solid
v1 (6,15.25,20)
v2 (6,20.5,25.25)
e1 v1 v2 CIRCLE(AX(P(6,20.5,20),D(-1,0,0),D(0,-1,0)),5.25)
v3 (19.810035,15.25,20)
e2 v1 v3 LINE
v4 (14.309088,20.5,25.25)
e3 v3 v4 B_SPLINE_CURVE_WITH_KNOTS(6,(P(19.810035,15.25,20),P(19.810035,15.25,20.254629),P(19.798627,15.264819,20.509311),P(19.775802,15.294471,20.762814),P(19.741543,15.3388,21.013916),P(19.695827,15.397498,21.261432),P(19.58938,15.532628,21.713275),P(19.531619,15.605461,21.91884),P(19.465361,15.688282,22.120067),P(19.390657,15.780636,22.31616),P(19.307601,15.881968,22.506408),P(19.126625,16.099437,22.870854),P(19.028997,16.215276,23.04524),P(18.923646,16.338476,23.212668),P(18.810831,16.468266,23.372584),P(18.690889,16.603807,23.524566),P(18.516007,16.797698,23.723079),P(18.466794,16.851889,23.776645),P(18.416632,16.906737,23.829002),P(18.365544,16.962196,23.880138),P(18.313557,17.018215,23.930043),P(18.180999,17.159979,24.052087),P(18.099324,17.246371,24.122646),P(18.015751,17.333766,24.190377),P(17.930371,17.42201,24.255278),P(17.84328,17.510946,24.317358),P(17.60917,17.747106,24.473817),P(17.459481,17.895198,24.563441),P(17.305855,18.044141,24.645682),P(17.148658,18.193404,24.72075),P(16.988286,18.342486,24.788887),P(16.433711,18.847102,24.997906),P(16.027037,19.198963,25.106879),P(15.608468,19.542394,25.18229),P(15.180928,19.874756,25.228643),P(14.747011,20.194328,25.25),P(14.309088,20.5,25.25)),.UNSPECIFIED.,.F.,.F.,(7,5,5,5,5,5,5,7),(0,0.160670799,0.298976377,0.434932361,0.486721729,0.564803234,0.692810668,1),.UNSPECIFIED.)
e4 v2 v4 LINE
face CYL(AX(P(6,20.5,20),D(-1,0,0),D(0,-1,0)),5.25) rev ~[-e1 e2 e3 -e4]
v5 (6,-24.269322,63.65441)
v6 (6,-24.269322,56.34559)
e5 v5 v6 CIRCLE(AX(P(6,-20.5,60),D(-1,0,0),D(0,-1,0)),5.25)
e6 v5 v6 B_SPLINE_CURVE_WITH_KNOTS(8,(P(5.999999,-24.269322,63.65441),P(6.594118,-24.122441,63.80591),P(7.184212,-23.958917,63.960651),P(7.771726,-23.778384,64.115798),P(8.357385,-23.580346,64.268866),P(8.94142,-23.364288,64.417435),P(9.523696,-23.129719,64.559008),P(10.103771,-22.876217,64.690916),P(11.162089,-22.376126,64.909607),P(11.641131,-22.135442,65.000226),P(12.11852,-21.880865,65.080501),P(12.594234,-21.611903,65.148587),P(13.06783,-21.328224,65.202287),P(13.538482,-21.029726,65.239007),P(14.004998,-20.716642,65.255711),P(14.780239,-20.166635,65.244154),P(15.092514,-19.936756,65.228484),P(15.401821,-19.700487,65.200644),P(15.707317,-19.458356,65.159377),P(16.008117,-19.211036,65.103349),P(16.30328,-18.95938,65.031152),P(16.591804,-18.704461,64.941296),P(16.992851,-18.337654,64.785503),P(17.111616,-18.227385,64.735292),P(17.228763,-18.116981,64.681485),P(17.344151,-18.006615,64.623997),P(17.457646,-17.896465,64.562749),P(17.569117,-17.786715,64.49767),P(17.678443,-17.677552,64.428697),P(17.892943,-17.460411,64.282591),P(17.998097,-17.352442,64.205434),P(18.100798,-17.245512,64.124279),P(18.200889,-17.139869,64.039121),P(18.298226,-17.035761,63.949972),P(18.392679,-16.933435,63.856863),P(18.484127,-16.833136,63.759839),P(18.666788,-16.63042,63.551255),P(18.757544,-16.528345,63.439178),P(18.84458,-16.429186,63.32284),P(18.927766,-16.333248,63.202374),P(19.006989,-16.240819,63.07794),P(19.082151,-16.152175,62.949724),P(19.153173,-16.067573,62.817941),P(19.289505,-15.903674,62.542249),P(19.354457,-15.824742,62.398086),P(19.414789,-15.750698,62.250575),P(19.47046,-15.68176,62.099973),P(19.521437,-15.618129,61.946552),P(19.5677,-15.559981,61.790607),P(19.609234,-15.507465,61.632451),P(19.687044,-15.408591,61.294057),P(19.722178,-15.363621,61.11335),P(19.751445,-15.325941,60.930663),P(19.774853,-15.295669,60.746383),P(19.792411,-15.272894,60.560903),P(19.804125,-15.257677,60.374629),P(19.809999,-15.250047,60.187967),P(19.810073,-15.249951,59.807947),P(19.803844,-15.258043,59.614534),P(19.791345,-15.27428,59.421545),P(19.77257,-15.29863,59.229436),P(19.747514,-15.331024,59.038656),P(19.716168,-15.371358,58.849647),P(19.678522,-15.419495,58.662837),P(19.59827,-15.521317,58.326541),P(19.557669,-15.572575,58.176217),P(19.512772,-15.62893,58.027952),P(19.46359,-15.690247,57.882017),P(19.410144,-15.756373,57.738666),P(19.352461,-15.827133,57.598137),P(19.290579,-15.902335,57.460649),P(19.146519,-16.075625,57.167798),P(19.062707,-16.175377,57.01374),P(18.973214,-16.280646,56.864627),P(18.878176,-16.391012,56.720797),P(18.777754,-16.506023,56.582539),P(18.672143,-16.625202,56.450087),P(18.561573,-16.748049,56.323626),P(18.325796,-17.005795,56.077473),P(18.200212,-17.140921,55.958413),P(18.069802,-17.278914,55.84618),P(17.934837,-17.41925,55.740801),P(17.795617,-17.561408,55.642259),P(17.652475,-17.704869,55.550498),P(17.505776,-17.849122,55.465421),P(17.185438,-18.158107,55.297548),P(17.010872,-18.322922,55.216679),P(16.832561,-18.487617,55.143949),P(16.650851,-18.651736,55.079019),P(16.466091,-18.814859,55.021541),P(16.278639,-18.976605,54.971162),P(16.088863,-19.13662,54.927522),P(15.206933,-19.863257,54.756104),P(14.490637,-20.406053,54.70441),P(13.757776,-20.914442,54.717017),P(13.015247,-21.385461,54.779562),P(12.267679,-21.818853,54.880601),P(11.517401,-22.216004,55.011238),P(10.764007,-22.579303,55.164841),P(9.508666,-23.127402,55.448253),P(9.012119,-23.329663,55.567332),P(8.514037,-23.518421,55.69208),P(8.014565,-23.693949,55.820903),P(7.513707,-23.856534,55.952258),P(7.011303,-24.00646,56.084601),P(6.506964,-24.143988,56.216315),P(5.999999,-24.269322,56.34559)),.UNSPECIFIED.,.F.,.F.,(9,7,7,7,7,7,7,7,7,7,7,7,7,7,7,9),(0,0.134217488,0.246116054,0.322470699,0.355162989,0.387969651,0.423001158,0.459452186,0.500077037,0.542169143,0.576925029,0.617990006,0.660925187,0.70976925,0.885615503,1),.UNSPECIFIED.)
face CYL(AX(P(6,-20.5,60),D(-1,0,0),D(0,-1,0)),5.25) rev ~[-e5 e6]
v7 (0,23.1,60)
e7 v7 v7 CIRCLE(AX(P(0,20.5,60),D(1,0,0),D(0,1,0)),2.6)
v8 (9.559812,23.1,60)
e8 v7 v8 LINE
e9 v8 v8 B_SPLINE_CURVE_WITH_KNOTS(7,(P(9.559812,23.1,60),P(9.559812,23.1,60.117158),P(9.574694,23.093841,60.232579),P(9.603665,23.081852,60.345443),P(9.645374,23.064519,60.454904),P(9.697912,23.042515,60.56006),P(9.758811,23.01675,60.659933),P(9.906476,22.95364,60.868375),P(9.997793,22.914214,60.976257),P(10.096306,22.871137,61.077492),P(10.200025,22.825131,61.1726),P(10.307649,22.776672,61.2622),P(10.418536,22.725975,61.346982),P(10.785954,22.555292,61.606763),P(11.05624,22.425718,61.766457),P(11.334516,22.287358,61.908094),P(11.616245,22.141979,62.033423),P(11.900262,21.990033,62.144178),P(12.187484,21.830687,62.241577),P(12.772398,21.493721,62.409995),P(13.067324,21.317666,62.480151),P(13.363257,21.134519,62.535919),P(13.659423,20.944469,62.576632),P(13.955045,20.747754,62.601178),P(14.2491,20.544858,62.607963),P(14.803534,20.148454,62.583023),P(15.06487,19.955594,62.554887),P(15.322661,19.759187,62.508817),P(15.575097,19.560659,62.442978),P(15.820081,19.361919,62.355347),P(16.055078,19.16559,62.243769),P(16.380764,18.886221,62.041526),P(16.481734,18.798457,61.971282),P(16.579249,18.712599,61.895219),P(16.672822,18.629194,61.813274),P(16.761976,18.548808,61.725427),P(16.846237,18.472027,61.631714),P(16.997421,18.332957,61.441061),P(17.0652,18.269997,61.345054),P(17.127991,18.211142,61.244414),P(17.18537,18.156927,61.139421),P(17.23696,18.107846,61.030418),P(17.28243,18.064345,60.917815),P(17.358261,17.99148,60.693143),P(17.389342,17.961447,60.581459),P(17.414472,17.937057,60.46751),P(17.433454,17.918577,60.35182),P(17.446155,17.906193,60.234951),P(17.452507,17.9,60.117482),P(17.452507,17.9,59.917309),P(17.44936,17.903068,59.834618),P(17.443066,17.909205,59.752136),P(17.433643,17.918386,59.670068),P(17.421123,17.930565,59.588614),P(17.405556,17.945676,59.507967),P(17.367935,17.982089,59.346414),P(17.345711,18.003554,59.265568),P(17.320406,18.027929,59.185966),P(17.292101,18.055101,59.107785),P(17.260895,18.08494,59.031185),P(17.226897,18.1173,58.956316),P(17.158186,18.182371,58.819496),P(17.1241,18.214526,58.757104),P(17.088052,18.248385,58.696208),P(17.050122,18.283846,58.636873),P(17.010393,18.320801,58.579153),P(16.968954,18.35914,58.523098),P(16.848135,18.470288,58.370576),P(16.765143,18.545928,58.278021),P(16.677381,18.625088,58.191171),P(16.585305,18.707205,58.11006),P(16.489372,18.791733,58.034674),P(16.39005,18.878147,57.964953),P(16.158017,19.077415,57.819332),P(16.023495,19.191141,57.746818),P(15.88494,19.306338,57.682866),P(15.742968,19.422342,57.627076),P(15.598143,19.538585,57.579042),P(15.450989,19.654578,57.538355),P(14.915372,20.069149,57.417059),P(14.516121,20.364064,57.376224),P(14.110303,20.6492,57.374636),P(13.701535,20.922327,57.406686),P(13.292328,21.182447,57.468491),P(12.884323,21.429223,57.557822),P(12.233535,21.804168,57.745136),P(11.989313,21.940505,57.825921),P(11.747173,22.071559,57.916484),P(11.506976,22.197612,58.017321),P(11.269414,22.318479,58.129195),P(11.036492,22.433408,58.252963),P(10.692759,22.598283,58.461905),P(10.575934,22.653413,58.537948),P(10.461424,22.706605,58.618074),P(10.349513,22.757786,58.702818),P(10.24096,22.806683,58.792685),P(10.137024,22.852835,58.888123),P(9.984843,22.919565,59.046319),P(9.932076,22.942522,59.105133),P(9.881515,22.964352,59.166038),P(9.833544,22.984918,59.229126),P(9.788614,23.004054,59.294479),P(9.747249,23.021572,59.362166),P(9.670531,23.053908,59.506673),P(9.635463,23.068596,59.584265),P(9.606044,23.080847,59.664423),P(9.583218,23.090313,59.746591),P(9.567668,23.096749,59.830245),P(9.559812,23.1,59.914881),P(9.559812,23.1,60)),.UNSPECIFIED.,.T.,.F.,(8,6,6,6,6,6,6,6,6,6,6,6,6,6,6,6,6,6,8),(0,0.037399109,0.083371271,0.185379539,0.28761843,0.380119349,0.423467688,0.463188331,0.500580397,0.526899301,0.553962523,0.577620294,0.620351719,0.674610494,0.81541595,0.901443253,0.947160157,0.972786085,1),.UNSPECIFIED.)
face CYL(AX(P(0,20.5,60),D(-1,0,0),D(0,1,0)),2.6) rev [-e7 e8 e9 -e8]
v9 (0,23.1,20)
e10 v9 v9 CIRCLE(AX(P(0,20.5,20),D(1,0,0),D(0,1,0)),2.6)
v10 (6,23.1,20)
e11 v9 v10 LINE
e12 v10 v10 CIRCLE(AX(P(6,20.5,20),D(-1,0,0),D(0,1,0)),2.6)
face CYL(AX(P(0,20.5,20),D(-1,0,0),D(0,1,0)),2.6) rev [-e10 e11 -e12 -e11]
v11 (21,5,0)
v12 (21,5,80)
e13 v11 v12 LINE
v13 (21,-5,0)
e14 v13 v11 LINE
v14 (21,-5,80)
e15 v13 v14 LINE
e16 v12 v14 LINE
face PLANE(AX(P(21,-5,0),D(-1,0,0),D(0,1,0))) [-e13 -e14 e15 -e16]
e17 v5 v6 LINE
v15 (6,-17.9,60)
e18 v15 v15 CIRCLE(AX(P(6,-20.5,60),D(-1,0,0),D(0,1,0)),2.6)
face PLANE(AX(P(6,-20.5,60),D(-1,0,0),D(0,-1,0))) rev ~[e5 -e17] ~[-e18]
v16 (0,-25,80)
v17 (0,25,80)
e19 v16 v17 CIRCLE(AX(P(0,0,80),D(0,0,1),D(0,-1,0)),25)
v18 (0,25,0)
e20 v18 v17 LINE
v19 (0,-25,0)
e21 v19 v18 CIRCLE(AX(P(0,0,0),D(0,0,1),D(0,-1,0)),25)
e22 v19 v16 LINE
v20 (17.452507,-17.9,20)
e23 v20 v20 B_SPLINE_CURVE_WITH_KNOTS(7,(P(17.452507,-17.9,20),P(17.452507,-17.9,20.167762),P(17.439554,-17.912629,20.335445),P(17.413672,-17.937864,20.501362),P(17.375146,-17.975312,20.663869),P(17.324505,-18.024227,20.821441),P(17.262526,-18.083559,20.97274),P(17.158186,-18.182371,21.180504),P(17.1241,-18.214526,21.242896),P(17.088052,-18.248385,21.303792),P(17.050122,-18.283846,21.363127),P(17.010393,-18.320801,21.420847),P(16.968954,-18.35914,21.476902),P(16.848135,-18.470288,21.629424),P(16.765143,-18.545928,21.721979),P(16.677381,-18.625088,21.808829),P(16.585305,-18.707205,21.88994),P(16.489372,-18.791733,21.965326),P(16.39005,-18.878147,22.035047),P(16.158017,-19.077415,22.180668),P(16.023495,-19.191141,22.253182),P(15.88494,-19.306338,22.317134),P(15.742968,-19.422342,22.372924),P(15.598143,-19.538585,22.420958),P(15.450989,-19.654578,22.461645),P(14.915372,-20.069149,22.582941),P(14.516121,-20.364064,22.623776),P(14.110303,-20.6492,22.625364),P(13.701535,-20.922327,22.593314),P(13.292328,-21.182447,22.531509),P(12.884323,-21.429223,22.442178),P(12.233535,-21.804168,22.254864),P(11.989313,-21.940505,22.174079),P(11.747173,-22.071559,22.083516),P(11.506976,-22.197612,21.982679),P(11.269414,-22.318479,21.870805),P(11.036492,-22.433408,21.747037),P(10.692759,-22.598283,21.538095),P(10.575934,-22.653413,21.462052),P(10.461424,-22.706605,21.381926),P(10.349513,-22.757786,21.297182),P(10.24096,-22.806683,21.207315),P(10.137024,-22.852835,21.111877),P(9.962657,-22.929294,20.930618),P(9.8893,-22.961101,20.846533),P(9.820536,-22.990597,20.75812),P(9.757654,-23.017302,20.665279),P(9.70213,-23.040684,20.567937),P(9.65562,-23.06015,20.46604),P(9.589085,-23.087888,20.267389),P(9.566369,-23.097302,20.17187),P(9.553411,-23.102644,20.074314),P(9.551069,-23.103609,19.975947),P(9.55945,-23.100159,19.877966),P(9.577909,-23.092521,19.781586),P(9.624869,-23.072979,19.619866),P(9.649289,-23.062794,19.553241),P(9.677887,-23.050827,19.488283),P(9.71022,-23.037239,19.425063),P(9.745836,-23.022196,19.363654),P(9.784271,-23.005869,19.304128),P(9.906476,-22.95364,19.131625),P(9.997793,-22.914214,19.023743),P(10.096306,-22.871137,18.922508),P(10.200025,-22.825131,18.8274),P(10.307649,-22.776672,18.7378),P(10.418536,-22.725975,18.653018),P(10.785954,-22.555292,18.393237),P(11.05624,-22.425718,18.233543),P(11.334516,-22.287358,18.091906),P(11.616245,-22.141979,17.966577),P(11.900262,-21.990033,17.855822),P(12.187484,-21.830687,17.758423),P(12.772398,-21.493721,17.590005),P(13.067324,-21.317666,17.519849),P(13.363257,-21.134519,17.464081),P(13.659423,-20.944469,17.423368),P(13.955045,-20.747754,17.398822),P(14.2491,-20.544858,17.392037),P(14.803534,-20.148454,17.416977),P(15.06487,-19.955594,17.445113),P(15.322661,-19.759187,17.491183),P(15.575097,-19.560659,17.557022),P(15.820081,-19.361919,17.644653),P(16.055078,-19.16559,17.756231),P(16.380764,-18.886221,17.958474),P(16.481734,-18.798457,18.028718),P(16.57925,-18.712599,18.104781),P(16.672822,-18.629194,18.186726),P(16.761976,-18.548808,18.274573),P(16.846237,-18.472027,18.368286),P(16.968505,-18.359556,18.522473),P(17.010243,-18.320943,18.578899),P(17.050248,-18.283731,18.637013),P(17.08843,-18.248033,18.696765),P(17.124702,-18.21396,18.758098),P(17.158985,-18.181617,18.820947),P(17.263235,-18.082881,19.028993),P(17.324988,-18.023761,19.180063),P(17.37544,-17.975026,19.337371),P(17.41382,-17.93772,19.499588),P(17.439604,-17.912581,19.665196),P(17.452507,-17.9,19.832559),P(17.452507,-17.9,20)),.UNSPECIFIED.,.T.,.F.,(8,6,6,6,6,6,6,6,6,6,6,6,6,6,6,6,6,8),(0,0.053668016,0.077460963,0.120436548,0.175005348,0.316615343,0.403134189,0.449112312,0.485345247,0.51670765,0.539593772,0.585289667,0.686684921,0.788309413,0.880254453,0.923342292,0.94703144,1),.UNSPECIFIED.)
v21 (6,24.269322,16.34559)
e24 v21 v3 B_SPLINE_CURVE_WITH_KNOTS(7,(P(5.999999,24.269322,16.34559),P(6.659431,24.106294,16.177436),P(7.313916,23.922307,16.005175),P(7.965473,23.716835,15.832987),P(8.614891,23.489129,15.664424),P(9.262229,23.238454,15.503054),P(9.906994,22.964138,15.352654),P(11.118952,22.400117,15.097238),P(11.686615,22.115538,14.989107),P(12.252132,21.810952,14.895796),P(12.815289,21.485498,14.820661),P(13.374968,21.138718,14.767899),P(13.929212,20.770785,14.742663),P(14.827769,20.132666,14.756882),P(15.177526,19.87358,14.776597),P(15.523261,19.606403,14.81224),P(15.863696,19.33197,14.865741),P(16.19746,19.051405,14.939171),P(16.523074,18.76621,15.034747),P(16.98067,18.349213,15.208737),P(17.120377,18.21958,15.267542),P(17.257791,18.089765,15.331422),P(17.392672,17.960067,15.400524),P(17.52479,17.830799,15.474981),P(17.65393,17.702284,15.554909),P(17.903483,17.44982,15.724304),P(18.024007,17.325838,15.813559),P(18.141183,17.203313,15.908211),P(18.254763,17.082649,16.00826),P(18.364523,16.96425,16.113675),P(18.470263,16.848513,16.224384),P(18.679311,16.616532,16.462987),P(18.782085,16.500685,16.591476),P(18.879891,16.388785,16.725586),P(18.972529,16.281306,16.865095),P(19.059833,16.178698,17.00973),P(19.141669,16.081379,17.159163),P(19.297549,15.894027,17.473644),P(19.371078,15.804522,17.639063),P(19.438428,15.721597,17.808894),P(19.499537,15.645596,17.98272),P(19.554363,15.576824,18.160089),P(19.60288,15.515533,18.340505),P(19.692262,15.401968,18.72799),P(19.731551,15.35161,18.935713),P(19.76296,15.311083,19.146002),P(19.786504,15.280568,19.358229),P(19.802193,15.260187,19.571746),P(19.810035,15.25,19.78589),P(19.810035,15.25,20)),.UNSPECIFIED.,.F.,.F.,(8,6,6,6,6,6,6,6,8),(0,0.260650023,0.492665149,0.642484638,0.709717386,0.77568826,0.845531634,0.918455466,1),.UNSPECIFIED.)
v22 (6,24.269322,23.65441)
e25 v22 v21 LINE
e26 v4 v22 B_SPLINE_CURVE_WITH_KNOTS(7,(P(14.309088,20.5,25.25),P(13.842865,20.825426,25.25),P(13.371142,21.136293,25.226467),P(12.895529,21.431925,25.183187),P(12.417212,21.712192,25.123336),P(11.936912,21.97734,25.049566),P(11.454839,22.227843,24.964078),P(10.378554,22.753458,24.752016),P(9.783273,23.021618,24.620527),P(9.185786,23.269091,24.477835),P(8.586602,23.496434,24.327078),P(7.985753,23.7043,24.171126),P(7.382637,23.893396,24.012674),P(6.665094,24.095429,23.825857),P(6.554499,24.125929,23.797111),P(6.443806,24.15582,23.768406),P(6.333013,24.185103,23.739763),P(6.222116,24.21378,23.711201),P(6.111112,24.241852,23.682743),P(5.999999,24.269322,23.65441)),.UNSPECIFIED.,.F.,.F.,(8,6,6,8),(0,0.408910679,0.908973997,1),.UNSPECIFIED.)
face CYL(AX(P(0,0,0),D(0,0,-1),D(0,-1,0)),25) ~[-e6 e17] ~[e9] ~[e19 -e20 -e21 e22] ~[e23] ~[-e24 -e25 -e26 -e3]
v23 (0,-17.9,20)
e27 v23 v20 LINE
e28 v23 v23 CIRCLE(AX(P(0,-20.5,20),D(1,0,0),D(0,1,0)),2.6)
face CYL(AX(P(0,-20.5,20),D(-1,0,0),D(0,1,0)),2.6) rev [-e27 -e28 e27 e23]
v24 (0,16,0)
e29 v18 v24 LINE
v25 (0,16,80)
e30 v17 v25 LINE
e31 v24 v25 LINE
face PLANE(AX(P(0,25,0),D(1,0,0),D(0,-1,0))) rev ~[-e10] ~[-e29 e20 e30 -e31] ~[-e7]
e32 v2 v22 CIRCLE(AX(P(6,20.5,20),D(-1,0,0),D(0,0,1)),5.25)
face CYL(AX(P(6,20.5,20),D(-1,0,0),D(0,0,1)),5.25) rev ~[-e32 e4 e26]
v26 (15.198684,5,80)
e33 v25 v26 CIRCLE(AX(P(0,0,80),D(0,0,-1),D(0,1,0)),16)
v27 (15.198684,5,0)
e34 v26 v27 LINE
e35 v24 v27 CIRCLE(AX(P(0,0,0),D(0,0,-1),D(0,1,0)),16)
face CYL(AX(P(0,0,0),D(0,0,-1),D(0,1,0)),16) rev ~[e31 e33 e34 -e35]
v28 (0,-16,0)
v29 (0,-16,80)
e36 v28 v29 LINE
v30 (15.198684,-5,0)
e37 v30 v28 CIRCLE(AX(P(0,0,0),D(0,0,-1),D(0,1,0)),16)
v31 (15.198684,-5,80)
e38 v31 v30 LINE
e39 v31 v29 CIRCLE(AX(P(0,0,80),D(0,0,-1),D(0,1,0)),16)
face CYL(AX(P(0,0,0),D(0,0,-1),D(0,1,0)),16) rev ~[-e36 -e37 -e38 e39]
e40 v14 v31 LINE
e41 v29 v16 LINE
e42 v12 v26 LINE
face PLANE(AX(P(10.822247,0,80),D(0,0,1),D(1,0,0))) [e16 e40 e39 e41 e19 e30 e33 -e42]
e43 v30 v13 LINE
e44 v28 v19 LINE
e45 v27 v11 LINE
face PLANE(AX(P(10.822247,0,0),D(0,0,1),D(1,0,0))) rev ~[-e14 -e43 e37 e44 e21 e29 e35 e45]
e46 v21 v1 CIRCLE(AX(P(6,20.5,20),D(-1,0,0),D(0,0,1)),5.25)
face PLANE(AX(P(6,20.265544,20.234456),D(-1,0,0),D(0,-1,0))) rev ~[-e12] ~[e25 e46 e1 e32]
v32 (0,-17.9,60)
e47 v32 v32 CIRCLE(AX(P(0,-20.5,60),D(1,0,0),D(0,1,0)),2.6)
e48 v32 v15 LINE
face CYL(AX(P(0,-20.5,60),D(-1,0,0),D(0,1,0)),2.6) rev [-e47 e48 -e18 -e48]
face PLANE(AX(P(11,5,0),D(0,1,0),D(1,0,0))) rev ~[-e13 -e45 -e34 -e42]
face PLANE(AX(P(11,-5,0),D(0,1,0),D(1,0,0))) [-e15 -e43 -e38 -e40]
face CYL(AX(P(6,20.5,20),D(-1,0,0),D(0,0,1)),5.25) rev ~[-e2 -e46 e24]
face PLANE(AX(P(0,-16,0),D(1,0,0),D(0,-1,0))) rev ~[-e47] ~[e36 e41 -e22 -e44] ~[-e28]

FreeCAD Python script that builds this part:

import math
import FreeCAD as App
import Part
import Sketcher

V = App.Vector
Q = App.Units.Quantity

doc = App.newDocument("Part")
params = doc.addObject("Spreadsheet::Sheet", "Params")
for row, (alias, value) in enumerate([
    ("sketch1_radius", "25 mm"),
    ("sketch1_radius2", "16 mm"),
    ("pad1_length", "80 mm"),
    ("sketch2_diameter", "5.2 mm"),
    ("sketch3_diameter", "10.5 mm"),
    ("pocket2_length", "25 mm"),
    ("sketch4_width", "10 mm"),
], start=1):
    params.set(f"A{row}", alias)
    params.set(f"B{row}", "=" + value)
    params.setAlias(f"B{row}", alias)

body = doc.addObject("PartDesign::Body", "Body")

sketch1 = body.newObject("Sketcher::SketchObject", "Sketch")
sketch1.AttachmentSupport = (doc.getObject("XY_Plane"), [""])
sketch1.MapMode = "FlatFace"
sketch1.addGeometry(Part.LineSegment(V(0, -16, 0), V(0, -25, 0)), False)
sketch1.addGeometry(Part.ArcOfCircle(Part.Circle(V(0, 0, 0), V(0, 0, 1), 25), math.radians(-90), math.radians(90)), False)
sketch1.addGeometry(Part.LineSegment(V(0, 25, 0), V(0, 16, 0)), False)
sketch1.addGeometry(Part.ArcOfCircle(Part.Circle(V(0, 0, 0), V(0, 0, 1), 16), math.radians(-90), math.radians(90)), False)
sketch1.addConstraint(Sketcher.Constraint("Coincident", 0, 2, 1, 1))
sketch1.addConstraint(Sketcher.Constraint("Coincident", 1, 2, 2, 1))
sketch1.addConstraint(Sketcher.Constraint("Coincident", 2, 2, 3, 2))
sketch1.addConstraint(Sketcher.Constraint("Coincident", 3, 1, 0, 1))
sketch1.addConstraint(Sketcher.Constraint("Vertical", 0))
sketch1.addConstraint(Sketcher.Constraint("Vertical", 2))
sketch1.addConstraint(Sketcher.Constraint("Coincident", 1, 3, -1, 1))
sketch1.addConstraint(Sketcher.Constraint("Coincident", 3, 3, -1, 1))
sketch1.addConstraint(Sketcher.Constraint("PointOnObject", 0, 2, -2))
sketch1.addConstraint(Sketcher.Constraint("PointOnObject", 1, 2, -2))
sketch1.addConstraint(Sketcher.Constraint("Radius", 1, Q("25 mm")))
sketch1.addConstraint(Sketcher.Constraint("Radius", 3, Q("16 mm")))
sketch1.setExpression("Constraints[10]", "Params.sketch1_radius")
sketch1.setExpression("Constraints[11]", "Params.sketch1_radius2")
pad1 = body.newObject("PartDesign::Pad", "Pad")
pad1.Profile = sketch1
pad1.setExpression("Length", "Params.pad1_length")

sketch2 = body.newObject("Sketcher::SketchObject", "Sketch001")
sketch2.AttachmentSupport = (doc.getObject("YZ_Plane"), [""])
sketch2.MapMode = "FlatFace"
sketch2.addGeometry(Part.Circle(V(-20.5, 20, 0), V(0, 0, 1), 2.6), False)
sketch2.addGeometry(Part.Circle(V(-20.5, 60, 0), V(0, 0, 1), 2.6), False)
sketch2.addGeometry(Part.Circle(V(20.5, 60, 0), V(0, 0, 1), 2.6), False)
sketch2.addGeometry(Part.Circle(V(20.5, 20, 0), V(0, 0, 1), 2.6), False)
sketch2.addConstraint(Sketcher.Constraint("Equal", 0, 1))
sketch2.addConstraint(Sketcher.Constraint("Equal", 1, 2))
sketch2.addConstraint(Sketcher.Constraint("Equal", 2, 3))
sketch2.addConstraint(Sketcher.Constraint("Symmetric", 1, 3, 2, 3, -2))
sketch2.addConstraint(Sketcher.Constraint("Symmetric", 0, 3, 3, 3, -2))
sketch2.addConstraint(Sketcher.Constraint("Vertical", 0, 3, 1, 3))
sketch2.addConstraint(Sketcher.Constraint("Diameter", 0, Q("5.2 mm")))
sketch2.addConstraint(Sketcher.Constraint("DistanceY", -1, 1, 0, 3, Q("20 mm")))
sketch2.addConstraint(Sketcher.Constraint("DistanceY", -1, 1, 1, 3, Q("60 mm")))
sketch2.addConstraint(Sketcher.Constraint("DistanceX", 1, 3, 2, 3, Q("41 mm")))
sketch2.setExpression("Constraints[6]", "Params.sketch2_diameter")
pocket1 = body.newObject("PartDesign::Pocket", "Pocket")
pocket1.Profile = sketch2
pocket1.Type = "ThroughAll"
pocket1.Reversed = True

sketch3 = body.newObject("Sketcher::SketchObject", "Sketch002")
sketch3.AttachmentSupport = (doc.getObject("YZ_Plane"), [""])
sketch3.MapMode = "FlatFace"
sketch3.AttachmentOffset = App.Placement(V(0, 0, 6), App.Rotation())
sketch3.addGeometry(Part.Circle(V(-20, 60, 0), V(0, 0, 1), 5), False)
sketch3.addGeometry(Part.ArcOfCircle(Part.Circle(V(20, 20, 0), V(0, 0, 1), 5), math.radians(90), math.radians(180)), False)
sketch3.addGeometry(Part.ArcOfCircle(Part.Circle(V(20, 20, 0), V(0, 0, 1), 5), math.radians(180), math.radians(450)), False)
sketch3.addConstraint(Sketcher.Constraint("Tangent", 1, 1, 2, 2))
sketch3.addConstraint(Sketcher.Constraint("Coincident", 2, 1, 1, 2))
sketch3.addConstraint(Sketcher.Constraint("Equal", 0, 1))
sketch3.addConstraint(Sketcher.Constraint("Horizontal", 1, 3, 2, 1))
sketch3.addConstraint(Sketcher.Constraint("Vertical", 2, 3, 1, 1))
sketch3.addConstraint(Sketcher.Constraint("Diameter", 0, Q("10.5 mm")))
sketch3.addConstraint(Sketcher.Constraint("DistanceY", -1, 1, 0, 3, Q("60 mm")))
sketch3.addConstraint(Sketcher.Constraint("DistanceY", -1, 1, 1, 3, Q("20 mm")))
sketch3.addConstraint(Sketcher.Constraint("DistanceX", 0, 3, 1, 3, Q("41 mm")))
sketch3.addConstraint(Sketcher.Constraint("DistanceX", 0, 3, -1, 1, Q("20.5 mm")))
sketch3.setExpression("Constraints[5]", "Params.sketch3_diameter")
pocket2 = body.newObject("PartDesign::Pocket", "Pocket001")
pocket2.Profile = sketch3
pocket2.setExpression("Length", "Params.pocket2_length")
pocket2.Reversed = True

sketch4 = body.newObject("Sketcher::SketchObject", "Sketch003")
sketch4.AttachmentSupport = (doc.getObject("XY_Plane"), [""])
sketch4.MapMode = "FlatFace"
sketch4.addGeometry(Part.LineSegment(V(11, 5, 0), V(11, -5, 0)), False)
sketch4.addGeometry(Part.LineSegment(V(11, -5, 0), V(21, -5, 0)), False)
sketch4.addGeometry(Part.LineSegment(V(21, -5, 0), V(21, 5, 0)), False)
sketch4.addGeometry(Part.LineSegment(V(21, 5, 0), V(11, 5, 0)), False)
sketch4.addConstraint(Sketcher.Constraint("Coincident", 0, 2, 1, 1))
sketch4.addConstraint(Sketcher.Constraint("Coincident", 1, 2, 2, 1))
sketch4.addConstraint(Sketcher.Constraint("Coincident", 2, 2, 3, 1))
sketch4.addConstraint(Sketcher.Constraint("Coincident", 3, 2, 0, 1))
sketch4.addConstraint(Sketcher.Constraint("Vertical", 0))
sketch4.addConstraint(Sketcher.Constraint("Horizontal", 1))
sketch4.addConstraint(Sketcher.Constraint("Vertical", 2))
sketch4.addConstraint(Sketcher.Constraint("Horizontal", 3))
sketch4.addConstraint(Sketcher.Constraint("Equal", 3, 0))
sketch4.addConstraint(Sketcher.Constraint("DistanceX", 1, 1, 1, 2, Q("10 mm")))
sketch4.addConstraint(Sketcher.Constraint("DistanceX", -1, 1, 0, 2, Q("11 mm")))
sketch4.addConstraint(Sketcher.Constraint("DistanceY", 0, 2, -1, 1, Q("5 mm")))
sketch4.setExpression("Constraints[9]", "Params.sketch4_width")
pocket3 = body.newObject("PartDesign::Pocket", "Pocket002")
pocket3.Profile = sketch4
pocket3.Type = "ThroughAll"
pocket3.Reversed = True

doc.recompute()
